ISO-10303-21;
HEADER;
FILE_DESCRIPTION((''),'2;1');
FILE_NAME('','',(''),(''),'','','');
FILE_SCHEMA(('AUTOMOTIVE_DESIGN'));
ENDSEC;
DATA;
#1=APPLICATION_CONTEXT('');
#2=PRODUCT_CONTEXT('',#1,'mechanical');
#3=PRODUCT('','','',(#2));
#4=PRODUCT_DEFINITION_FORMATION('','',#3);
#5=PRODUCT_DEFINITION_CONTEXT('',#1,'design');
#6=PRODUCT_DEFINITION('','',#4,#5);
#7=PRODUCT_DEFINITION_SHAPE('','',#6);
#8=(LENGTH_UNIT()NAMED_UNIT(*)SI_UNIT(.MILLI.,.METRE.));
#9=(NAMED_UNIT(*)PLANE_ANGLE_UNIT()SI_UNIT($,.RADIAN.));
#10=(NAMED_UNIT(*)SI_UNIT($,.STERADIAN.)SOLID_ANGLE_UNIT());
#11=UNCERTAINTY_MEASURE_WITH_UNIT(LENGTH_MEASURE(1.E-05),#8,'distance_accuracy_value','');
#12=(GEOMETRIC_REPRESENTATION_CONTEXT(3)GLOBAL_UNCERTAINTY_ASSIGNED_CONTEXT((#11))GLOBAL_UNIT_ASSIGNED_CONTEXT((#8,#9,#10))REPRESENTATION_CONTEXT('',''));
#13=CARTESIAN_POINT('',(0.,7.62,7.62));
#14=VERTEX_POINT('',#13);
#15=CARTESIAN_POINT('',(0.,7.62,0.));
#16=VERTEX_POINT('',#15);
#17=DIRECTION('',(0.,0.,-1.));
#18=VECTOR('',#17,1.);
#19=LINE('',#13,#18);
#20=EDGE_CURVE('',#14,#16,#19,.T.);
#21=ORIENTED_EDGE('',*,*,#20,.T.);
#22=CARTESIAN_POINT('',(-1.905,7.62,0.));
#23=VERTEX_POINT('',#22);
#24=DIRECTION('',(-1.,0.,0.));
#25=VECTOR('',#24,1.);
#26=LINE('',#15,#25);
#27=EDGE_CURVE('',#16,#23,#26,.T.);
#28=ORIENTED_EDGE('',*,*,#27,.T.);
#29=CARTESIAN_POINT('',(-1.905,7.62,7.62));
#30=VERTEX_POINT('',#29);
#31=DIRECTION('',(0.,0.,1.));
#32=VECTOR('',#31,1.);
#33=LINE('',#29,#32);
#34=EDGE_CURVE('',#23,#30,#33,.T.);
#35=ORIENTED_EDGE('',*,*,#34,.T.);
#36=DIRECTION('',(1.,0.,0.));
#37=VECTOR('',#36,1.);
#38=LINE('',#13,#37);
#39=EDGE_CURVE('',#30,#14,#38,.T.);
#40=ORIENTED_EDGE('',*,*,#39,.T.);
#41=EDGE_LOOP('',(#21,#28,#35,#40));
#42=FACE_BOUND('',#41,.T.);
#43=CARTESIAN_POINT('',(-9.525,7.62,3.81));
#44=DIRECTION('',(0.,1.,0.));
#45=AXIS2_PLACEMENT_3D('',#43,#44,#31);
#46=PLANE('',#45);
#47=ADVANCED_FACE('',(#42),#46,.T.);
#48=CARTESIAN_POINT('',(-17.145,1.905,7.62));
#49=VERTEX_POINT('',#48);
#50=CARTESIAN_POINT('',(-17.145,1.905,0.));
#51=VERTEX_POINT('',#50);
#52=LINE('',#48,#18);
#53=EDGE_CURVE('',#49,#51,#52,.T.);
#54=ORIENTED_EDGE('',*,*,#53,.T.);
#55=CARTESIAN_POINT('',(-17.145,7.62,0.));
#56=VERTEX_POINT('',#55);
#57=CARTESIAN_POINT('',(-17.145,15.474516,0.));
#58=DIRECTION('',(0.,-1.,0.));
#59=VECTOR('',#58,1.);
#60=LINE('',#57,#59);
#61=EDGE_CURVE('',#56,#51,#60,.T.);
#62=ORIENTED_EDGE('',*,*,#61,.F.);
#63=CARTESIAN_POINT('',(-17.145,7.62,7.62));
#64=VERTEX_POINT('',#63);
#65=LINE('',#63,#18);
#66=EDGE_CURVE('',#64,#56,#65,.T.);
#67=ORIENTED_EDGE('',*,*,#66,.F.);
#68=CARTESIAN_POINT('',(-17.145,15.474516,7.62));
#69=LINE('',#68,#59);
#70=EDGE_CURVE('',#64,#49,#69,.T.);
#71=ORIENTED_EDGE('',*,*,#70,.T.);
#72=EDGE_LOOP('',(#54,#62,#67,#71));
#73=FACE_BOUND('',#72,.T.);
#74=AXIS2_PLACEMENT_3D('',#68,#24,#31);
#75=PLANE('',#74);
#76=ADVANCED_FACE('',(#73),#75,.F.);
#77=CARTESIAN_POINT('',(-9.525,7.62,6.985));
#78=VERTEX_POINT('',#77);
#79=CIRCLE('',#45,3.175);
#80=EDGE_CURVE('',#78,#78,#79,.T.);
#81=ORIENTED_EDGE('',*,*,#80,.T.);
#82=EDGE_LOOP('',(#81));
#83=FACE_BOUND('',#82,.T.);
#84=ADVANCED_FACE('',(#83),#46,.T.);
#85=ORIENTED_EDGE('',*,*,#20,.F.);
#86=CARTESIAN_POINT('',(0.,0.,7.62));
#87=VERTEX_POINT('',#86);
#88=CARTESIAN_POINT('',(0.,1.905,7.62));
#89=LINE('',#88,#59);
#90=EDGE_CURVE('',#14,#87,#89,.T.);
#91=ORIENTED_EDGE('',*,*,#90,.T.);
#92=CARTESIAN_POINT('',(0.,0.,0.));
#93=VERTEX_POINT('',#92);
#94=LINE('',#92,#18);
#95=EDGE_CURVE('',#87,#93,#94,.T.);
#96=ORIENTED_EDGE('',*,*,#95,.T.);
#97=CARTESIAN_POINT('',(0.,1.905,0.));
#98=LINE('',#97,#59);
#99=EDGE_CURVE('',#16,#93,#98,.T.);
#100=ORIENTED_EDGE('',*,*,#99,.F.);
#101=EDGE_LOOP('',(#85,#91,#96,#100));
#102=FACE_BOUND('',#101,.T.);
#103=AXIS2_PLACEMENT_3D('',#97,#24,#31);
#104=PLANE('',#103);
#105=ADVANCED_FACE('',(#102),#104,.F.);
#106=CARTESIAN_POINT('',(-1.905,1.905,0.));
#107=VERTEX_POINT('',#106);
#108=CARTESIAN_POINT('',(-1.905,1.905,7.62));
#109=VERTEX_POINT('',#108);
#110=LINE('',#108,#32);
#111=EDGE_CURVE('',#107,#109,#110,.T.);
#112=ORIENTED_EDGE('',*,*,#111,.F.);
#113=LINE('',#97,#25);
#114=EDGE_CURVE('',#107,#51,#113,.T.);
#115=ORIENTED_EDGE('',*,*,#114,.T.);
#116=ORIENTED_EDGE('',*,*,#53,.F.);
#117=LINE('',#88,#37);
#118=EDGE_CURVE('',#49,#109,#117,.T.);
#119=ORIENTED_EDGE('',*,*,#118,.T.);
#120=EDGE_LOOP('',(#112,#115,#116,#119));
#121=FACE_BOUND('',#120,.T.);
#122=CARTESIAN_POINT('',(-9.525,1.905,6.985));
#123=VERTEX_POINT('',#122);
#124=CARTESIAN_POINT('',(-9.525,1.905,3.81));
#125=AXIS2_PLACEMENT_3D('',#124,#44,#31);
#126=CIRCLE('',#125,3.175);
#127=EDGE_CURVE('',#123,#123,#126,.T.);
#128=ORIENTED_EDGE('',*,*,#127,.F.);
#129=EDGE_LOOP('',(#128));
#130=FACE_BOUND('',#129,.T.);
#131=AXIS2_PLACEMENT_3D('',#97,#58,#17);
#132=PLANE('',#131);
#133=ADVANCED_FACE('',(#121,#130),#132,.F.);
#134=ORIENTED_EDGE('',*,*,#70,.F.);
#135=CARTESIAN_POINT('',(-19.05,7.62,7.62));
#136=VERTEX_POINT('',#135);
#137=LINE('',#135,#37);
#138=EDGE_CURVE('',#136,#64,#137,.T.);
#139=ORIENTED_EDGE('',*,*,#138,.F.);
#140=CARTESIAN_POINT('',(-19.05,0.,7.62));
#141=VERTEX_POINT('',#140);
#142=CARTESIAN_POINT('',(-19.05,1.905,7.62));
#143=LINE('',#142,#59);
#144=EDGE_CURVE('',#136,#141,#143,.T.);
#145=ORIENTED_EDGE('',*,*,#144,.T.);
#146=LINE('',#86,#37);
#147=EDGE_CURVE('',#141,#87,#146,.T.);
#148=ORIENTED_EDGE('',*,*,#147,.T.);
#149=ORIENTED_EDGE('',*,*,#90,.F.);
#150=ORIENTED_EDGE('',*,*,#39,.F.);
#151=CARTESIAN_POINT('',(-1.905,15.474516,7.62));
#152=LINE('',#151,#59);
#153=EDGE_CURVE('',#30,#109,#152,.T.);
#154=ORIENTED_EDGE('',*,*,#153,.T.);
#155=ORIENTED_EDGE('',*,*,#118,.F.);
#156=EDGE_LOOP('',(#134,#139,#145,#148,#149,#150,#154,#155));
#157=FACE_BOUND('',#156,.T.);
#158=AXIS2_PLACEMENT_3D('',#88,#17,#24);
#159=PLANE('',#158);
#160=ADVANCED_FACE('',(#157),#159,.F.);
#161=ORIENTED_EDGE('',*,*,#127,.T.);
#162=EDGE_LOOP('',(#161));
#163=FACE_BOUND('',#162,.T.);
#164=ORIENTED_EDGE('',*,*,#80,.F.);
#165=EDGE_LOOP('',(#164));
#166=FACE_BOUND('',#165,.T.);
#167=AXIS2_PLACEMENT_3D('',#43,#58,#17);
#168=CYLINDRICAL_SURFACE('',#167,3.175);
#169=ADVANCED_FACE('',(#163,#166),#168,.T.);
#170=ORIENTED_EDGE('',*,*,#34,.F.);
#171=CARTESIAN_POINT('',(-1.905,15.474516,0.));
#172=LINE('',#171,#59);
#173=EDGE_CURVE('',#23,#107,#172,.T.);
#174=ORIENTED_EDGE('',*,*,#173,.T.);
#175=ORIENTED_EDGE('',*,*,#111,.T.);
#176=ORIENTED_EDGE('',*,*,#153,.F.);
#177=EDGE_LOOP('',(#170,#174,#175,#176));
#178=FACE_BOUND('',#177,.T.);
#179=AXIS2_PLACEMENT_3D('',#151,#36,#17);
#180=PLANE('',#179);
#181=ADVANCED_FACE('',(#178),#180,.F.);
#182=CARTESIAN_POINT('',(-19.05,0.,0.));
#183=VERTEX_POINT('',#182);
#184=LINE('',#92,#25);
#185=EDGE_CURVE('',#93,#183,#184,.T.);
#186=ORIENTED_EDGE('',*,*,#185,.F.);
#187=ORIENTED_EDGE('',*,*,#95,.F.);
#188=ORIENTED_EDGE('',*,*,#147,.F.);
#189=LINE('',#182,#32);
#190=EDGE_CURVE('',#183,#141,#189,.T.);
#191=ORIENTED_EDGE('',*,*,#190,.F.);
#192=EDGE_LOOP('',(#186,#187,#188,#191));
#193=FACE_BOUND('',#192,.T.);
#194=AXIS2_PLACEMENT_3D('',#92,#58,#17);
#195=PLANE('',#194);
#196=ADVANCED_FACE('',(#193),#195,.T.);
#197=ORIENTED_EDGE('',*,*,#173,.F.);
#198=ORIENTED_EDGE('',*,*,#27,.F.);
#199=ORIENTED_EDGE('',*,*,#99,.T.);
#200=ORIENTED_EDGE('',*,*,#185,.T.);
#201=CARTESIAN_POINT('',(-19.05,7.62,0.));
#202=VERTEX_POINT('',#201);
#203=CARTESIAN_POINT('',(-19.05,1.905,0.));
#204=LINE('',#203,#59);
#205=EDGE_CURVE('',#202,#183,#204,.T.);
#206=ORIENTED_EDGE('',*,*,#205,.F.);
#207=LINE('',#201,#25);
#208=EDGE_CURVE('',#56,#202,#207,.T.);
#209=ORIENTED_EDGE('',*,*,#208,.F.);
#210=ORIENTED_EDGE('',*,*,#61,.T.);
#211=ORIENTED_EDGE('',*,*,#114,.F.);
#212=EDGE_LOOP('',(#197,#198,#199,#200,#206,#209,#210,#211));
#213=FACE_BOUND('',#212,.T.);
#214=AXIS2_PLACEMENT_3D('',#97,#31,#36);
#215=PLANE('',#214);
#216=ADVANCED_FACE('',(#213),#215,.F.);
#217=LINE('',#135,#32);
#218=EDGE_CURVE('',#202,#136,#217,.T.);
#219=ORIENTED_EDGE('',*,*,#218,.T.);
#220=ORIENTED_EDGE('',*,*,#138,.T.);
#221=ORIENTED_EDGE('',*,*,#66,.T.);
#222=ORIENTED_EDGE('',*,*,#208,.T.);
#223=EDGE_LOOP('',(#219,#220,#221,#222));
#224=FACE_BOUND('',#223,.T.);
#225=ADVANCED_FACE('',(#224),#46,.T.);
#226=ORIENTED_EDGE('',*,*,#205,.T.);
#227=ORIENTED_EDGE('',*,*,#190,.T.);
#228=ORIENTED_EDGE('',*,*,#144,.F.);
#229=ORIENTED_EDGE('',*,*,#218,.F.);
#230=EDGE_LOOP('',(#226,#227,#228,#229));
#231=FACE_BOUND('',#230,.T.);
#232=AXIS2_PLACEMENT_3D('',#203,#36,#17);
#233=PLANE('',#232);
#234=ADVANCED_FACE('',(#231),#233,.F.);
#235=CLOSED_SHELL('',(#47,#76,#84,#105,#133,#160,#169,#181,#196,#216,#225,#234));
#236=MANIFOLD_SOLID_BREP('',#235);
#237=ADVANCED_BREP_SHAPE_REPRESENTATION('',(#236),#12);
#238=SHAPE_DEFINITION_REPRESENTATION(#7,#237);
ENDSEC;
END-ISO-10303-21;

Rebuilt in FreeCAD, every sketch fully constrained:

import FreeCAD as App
import Part
import Sketcher

V = App.Vector
Q = App.Units.Quantity


def add_polygon(sketch, points):
    """Adds a closed chain of lines whose ends are joined by coincident constraints."""
    first, n = sketch.GeometryCount, len(points)
    for a, b in zip(points, points[1:] + points[:1]):
        sketch.addGeometry(Part.LineSegment(App.Vector(*a, 0), App.Vector(*b, 0)), False)
    for i in range(n):
        sketch.addConstraint(Sketcher.Constraint("Coincident", first + i, 2, first + (i + 1) % n, 1))

doc = App.newDocument("Part")
body = doc.addObject("PartDesign::Body", "Body")

# Sketch on XZ plane
sketch1 = body.newObject("Sketcher::SketchObject", "Sketch")
sketch1.AttachmentSupport = (doc.getObject("XZ_Plane"), [""])
sketch1.MapMode = "FlatFace"
add_polygon(sketch1, [(0, 7.62), (0, 0), (-19.05, 0), (-19.05, 7.62)])  # lines 0-3
sketch1.addConstraint(Sketcher.Constraint("Vertical", 0))
sketch1.addConstraint(Sketcher.Constraint("Horizontal", 1))
sketch1.addConstraint(Sketcher.Constraint("Vertical", 2))
sketch1.addConstraint(Sketcher.Constraint("Horizontal", 3))
sketch1.addConstraint(Sketcher.Constraint("Coincident", 0, 2, -1, 1))
sketch1.addConstraint(Sketcher.Constraint("DistanceY", 0, 2, 0, 1, Q("0.3 in")))
sketch1.addConstraint(Sketcher.Constraint("DistanceX", 1, 2, 1, 1, Q("0.75 in")))
pad1 = body.newObject("PartDesign::Pad", "Pad")
pad1.Profile = sketch1
pad1.Length = Q("0.075 in")
pad1.Reversed = True

# Sketch on XZ plane
sketch2 = body.newObject("Sketcher::SketchObject", "Sketch001")
sketch2.AttachmentSupport = (doc.getObject("XZ_Plane"), [""])
sketch2.MapMode = "FlatFace"
sketch2.AttachmentOffset = App.Placement(V(0, 0, -0.075 * 25.4), App.Rotation())
sketch2.addGeometry(Part.Circle(V(-9.525, 3.81, 0), V(0, 0, 1), 3.175), False)
sketch2.addConstraint(Sketcher.Constraint("Diameter", 0, Q("0.25 in")))
sketch2.addConstraint(Sketcher.Constraint("DistanceY", -1, 1, 0, 3, Q("0.15 in")))
sketch2.addConstraint(Sketcher.Constraint("DistanceX", 0, 3, -1, 1, Q("0.375 in")))
pad2 = body.newObject("PartDesign::Pad", "Pad001")
pad2.Profile = sketch2
pad2.Length = Q("0.225 in")
pad2.Reversed = True

# Sketch on XZ plane
sketch3 = body.newObject("Sketcher::SketchObject", "Sketch002")
sketch3.AttachmentSupport = (doc.getObject("XZ_Plane"), [""])
sketch3.MapMode = "FlatFace"
sketch3.AttachmentOffset = App.Placement(V(0, 0, -0.075 * 25.4), App.Rotation())
add_polygon(sketch3, [(0, 7.62), (0, 0), (-1.905, 0), (-1.905, 7.62)])  # lines 0-3
add_polygon(sketch3, [(-17.145, 7.62), (-17.145, 0), (-19.05, 0), (-19.05, 7.62)])  # lines 4-7
sketch3.addConstraint(Sketcher.Constraint("Vertical", 0))
sketch3.addConstraint(Sketcher.Constraint("Horizontal", 1))
sketch3.addConstraint(Sketcher.Constraint("Vertical", 2))
sketch3.addConstraint(Sketcher.Constraint("Horizontal", 3))
sketch3.addConstraint(Sketcher.Constraint("Vertical", 4))
sketch3.addConstraint(Sketcher.Constraint("Horizontal", 5))
sketch3.addConstraint(Sketcher.Constraint("Vertical", 6))
sketch3.addConstraint(Sketcher.Constraint("Horizontal", 7))
sketch3.addConstraint(Sketcher.Constraint("Coincident", 0, 2, -1, 1))
sketch3.addConstraint(Sketcher.Constraint("PointOnObject", 4, 2, -1))
sketch3.addConstraint(Sketcher.Constraint("Horizontal", 3, 2, 6, 2))
sketch3.addConstraint(Sketcher.Constraint("Equal", 3, 5))
sketch3.addConstraint(Sketcher.Constraint("DistanceY", 0, 2, 0, 1, Q("0.3 in")))
sketch3.addConstraint(Sketcher.Constraint("DistanceX", 4, 2, 1, 2, Q("0.6 in")))
sketch3.addConstraint(Sketcher.Constraint("DistanceX", 1, 2, 1, 1, Q("0.075 in")))
pad3 = body.newObject("PartDesign::Pad", "Pad002")
pad3.Profile = sketch3
pad3.Length = Q("0.225 in")
pad3.Reversed = True

doc.recompute()
